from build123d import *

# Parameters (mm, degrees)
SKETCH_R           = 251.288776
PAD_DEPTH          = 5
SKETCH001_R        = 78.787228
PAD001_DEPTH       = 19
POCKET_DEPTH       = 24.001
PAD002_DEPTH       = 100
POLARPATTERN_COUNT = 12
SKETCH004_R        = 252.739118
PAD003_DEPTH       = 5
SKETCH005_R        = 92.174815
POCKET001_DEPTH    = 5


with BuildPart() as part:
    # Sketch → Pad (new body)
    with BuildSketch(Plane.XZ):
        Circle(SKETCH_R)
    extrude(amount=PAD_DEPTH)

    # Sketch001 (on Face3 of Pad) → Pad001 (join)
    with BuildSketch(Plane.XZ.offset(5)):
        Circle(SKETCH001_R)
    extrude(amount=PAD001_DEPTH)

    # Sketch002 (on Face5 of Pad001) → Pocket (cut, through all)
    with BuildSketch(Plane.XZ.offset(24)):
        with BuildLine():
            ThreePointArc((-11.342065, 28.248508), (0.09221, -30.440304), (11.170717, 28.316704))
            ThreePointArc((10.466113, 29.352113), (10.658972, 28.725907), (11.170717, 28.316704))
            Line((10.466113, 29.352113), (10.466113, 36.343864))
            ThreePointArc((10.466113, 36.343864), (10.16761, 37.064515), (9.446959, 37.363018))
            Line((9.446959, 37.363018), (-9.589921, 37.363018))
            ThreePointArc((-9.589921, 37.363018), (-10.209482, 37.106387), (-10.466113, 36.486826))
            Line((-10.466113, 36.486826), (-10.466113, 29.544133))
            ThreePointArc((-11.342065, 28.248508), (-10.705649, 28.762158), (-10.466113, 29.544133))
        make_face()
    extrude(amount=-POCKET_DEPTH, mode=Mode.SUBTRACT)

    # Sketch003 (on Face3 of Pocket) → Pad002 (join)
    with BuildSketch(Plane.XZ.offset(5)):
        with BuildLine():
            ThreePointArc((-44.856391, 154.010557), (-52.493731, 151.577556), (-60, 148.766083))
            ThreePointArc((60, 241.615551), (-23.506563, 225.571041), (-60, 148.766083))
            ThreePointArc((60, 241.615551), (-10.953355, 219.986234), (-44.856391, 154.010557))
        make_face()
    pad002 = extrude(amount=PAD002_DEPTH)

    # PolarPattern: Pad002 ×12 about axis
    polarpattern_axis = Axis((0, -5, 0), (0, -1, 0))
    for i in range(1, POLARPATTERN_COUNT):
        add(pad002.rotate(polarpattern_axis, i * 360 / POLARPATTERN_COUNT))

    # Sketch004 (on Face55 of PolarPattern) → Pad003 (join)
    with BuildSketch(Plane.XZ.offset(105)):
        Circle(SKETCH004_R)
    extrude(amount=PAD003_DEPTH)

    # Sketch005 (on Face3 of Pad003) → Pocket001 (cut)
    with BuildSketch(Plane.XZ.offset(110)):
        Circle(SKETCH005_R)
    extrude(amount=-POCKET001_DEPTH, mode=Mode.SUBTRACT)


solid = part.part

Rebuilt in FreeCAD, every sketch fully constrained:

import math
import FreeCAD as App
import Part
import Sketcher

V = App.Vector

doc = App.newDocument("Part")
params = doc.addObject("Spreadsheet::Sheet", "Params")
for row, (alias, value) in enumerate([
    ("pad1_length", "5 mm"),
    ("pad2_length", "19 mm"),
    ("pad3_length", "100 mm"),
    ("pad4_length", "5 mm"),
    ("pocket2_length", "5 mm"),
], start=1):
    params.set(f"A{row}", alias)
    params.set(f"B{row}", "=" + value)
    params.setAlias(f"B{row}", alias)

body = doc.addObject("PartDesign::Body", "Body")

# Sketch on XZ plane
sketch1 = body.newObject("Sketcher::SketchObject", "Sketch")
sketch1.AttachmentSupport = (doc.getObject("XZ_Plane"), [""])
sketch1.MapMode = "FlatFace"
sketch1.addGeometry(Part.Circle(V(0, 0, 0), V(0, 0, 1), 251.288776), False)
sketch1.addConstraint(Sketcher.Constraint("Coincident", 0, 3, -1, 1))
sketch1.addConstraint(Sketcher.Constraint("Diameter", 0, 502.577552))
pad1 = body.newObject("PartDesign::Pad", "Pad")
pad1.Profile = sketch1
pad1.setExpression("Length", "Params.pad1_length")

# Sketch on XZ plane
sketch2 = body.newObject("Sketcher::SketchObject", "Sketch001")
sketch2.AttachmentSupport = (doc.getObject("XZ_Plane"), [""])
sketch2.MapMode = "FlatFace"
sketch2.AttachmentOffset = App.Placement(V(0, 0, 5), App.Rotation())
sketch2.addGeometry(Part.Circle(V(0, 0, 0), V(0, 0, 1), 78.787228), False)
sketch2.addConstraint(Sketcher.Constraint("Coincident", 0, 3, -1, 1))
sketch2.addConstraint(Sketcher.Constraint("Diameter", 0, 157.574456))
pad2 = body.newObject("PartDesign::Pad", "Pad001")
pad2.Profile = sketch2
pad2.setExpression("Length", "Params.pad2_length")

# Sketch on XZ plane
sketch3 = body.newObject("Sketcher::SketchObject", "Sketch002")
sketch3.AttachmentSupport = (doc.getObject("XZ_Plane"), [""])
sketch3.MapMode = "FlatFace"
sketch3.AttachmentOffset = App.Placement(V(0, 0, 24), App.Rotation())
sketch3.addGeometry(Part.ArcOfCircle(Part.Circle(V(0, 0, 0), V(0, 0, 1), 30.440444), math.radians(111.875966), math.radians(428.471156)), False)
sketch3.addGeometry(Part.ArcOfCircle(Part.Circle(V(11.579177, 29.352113, 0), V(0, 0, 1), 1.113064), math.radians(-179.999982), math.radians(-111.528826)), False)
sketch3.addGeometry(Part.LineSegment(V(10.466113, 29.352113, 0), V(10.466113, 36.343864, 0)), False)
sketch3.addGeometry(Part.ArcOfCircle(Part.Circle(V(9.44696, 36.343865, 0), V(0, 0, 1), 1.019153), math.radians(-0.000057), math.radians(90.000057)), False)
sketch3.addGeometry(Part.LineSegment(V(9.446959, 37.363018, 0), V(-9.589921, 37.363018, 0)), False)
sketch3.addGeometry(Part.ArcOfCircle(Part.Circle(V(-9.58992, 36.486825, 0), V(0, 0, 1), 0.876193), math.radians(90.000068), math.radians(179.999932)), False)
sketch3.addGeometry(Part.LineSegment(V(-10.466113, 36.486826, 0), V(-10.466113, 29.544133, 0)), False)
sketch3.addGeometry(Part.ArcOfCircle(Part.Circle(V(-11.862269, 29.544131, 0), V(0, 0, 1), 1.396156), math.radians(-68.124122), math.radians(0.000089)), False)
sketch3.addConstraint(Sketcher.Constraint("Tangent", 0, 2, 1, 2))
sketch3.addConstraint(Sketcher.Constraint("Tangent", 1, 1, 2, 1))
sketch3.addConstraint(Sketcher.Constraint("Tangent", 2, 2, 3, 1))
sketch3.addConstraint(Sketcher.Constraint("Tangent", 3, 2, 4, 1))
sketch3.addConstraint(Sketcher.Constraint("Tangent", 4, 2, 5, 1))
sketch3.addConstraint(Sketcher.Constraint("Tangent", 5, 2, 6, 1))
sketch3.addConstraint(Sketcher.Constraint("Tangent", 6, 2, 7, 2))
sketch3.addConstraint(Sketcher.Constraint("Tangent", 7, 1, 0, 1))
sketch3.addConstraint(Sketcher.Constraint("Vertical", 2))
sketch3.addConstraint(Sketcher.Constraint("Horizontal", 4))
sketch3.addConstraint(Sketcher.Constraint("Vertical", 6))
sketch3.addConstraint(Sketcher.Constraint("Coincident", 0, 3, -1, 1))
sketch3.addConstraint(Sketcher.Constraint("Radius", 0, 30.440444))
sketch3.addConstraint(Sketcher.Constraint("Radius", 1, 1.113064))
sketch3.addConstraint(Sketcher.Constraint("Radius", 3, 1.019153))
sketch3.addConstraint(Sketcher.Constraint("Radius", 5, 0.876193))
sketch3.addConstraint(Sketcher.Constraint("Radius", 7, 1.396156))
sketch3.addConstraint(Sketcher.Constraint("DistanceX", 4, 2, 4, 1, 19.03688))
sketch3.addConstraint(Sketcher.Constraint("DistanceY", 2, 1, 2, 2, 6.991751))
sketch3.addConstraint(Sketcher.Constraint("DistanceY", 6, 2, 6, 1, 6.942693))
pocket1 = body.newObject("PartDesign::Pocket", "Pocket")
pocket1.Profile = sketch3
pocket1.Type = "ThroughAll"

# Sketch on XZ plane
sketch4 = body.newObject("Sketcher::SketchObject", "Sketch003")
sketch4.AttachmentSupport = (doc.getObject("XZ_Plane"), [""])
sketch4.MapMode = "FlatFace"
sketch4.AttachmentOffset = App.Placement(V(0, 0, 5), App.Rotation())
sketch4.addGeometry(Part.ArcOfCircle(Part.Circle(V(0.000155, -0.000445, 0), V(0, 0, 1), 160.410407), math.radians(106.238489), math.radians(111.965086)), False)
sketch4.addGeometry(Part.ArcOfCircle(Part.Circle(V(50.094441, 146.916752, 0), V(0, 0, 1), 95.215454), math.radians(84.028538), math.radians(175.727353)), False)
sketch4.addGeometry(Part.ArcOfCircle(Part.Circle(V(34.090424, 151.131859, 0), V(0, 0, 1), 94.120161), math.radians(74.021186), math.radians(181.440321)), False)
sketch4.addConstraint(Sketcher.Constraint("Coincident", 0, 1, 1, 2))
sketch4.addConstraint(Sketcher.Constraint("Coincident", 1, 1, 2, 1))
sketch4.addConstraint(Sketcher.Constraint("Coincident", 2, 2, 0, 2))
sketch4.addConstraint(Sketcher.Constraint("DistanceX", -1, 1, 1, 1, 60.0))
sketch4.addConstraint(Sketcher.Constraint("DistanceX", 2, 2, -1, 1, 60.0))
sketch4.addConstraint(Sketcher.Constraint("Radius", 2, 94.120161))
sketch4.addConstraint(Sketcher.Constraint("Radius", 0, 160.410407))
sketch4.addConstraint(Sketcher.Constraint("Radius", 1, 95.215454))
sketch4.addConstraint(Sketcher.Constraint("DistanceY", 2, 3, 0, 1, 2.878698))
sketch4.addConstraint(Sketcher.Constraint("DistanceY", 1, 3, 1, 1, 94.698799))
sketch4.addConstraint(Sketcher.Constraint("DistanceY", -1, 1, 2, 3, 151.131859))
sketch4.addConstraint(Sketcher.Constraint("DistanceX", 0, 3, 2, 3, 34.090268))
pad3 = body.newObject("PartDesign::Pad", "Pad002")
pad3.Profile = sketch4
pad3.setExpression("Length", "Params.pad3_length")
doc.recompute()

polarpattern = body.newObject("PartDesign::PolarPattern", "PolarPattern")
polarpattern.Originals = [pad3]
polarpattern.Axis = (doc.getObject("Y_Axis"), [""])
polarpattern.Angle = 360
polarpattern.Occurrences = 12
body.Tip = polarpattern

# Sketch on XZ plane
sketch5 = body.newObject("Sketcher::SketchObject", "Sketch004")
sketch5.AttachmentSupport = (doc.getObject("XZ_Plane"), [""])
sketch5.MapMode = "FlatFace"
sketch5.AttachmentOffset = App.Placement(V(0, 0, 105), App.Rotation())
sketch5.addGeometry(Part.Circle(V(0, 0, 0), V(0, 0, 1), 252.739118), False)
sketch5.addConstraint(Sketcher.Constraint("Coincident", 0, 3, -1, 1))
sketch5.addConstraint(Sketcher.Constraint("Diameter", 0, 505.478236))
pad4 = body.newObject("PartDesign::Pad", "Pad003")
pad4.Profile = sketch5
pad4.setExpression("Length", "Params.pad4_length")

# Sketch on XZ plane
sketch6 = body.newObject("Sketcher::SketchObject", "Sketch005")
sketch6.AttachmentSupport = (doc.getObject("XZ_Plane"), [""])
sketch6.MapMode = "FlatFace"
sketch6.AttachmentOffset = App.Placement(V(0, 0, 110), App.Rotation())
sketch6.addGeometry(Part.Circle(V(0, 0, 0), V(0, 0, 1), 92.174815), False)
sketch6.addConstraint(Sketcher.Constraint("Coincident", 0, 3, -1, 1))
sketch6.addConstraint(Sketcher.Constraint("Diameter", 0, 184.34963))
pocket2 = body.newObject("PartDesign::Pocket", "Pocket001")
pocket2.Profile = sketch6
pocket2.setExpression("Length", "Params.pocket2_length")

doc.recompute()
